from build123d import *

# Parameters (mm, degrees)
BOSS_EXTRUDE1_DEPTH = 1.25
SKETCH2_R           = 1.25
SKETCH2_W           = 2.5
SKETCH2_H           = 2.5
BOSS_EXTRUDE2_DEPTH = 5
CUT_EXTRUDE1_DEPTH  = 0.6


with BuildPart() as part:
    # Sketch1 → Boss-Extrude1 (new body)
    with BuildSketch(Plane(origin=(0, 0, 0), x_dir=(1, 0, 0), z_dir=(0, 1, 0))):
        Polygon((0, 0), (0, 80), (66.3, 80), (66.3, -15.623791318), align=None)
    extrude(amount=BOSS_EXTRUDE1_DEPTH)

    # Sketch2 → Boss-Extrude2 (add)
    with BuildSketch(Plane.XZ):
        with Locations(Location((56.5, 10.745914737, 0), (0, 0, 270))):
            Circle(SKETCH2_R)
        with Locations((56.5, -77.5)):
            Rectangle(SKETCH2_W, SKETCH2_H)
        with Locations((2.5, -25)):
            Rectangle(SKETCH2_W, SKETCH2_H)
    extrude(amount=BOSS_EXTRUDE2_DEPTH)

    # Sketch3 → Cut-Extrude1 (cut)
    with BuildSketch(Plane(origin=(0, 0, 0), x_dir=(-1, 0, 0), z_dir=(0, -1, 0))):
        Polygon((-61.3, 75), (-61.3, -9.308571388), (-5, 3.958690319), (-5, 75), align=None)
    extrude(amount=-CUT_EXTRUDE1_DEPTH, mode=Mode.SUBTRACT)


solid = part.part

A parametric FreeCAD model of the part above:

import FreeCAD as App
import Part
import Sketcher
from FreeCAD import Vector
Q = App.Units.Quantity

doc = App.newDocument("Part")
body = doc.addObject("PartDesign::Body", "Body")

# Sketch on XZ plane
sketch1 = doc.addObject("Sketcher::SketchObject", "Sketch")
body.addObject(sketch1)
sketch1.AttachmentSupport = (doc.XZ_Plane, [""])
sketch1.MapMode = "FlatFace"
sketch1.addGeometry([
    Part.LineSegment(Vector(0, -80, 0), Vector(0, 0, 0)),
    Part.LineSegment(Vector(0, 0, 0), Vector(66, 16, 0)),
    Part.LineSegment(Vector(66, 16, 0), Vector(66, -80, 0)),
    Part.LineSegment(Vector(66, -80, 0), Vector(0, -80, 0)),
], False)
sketch1.addConstraint([
    Sketcher.Constraint("Coincident", 0, 2, 1, 1),
    Sketcher.Constraint("Coincident", 1, 2, 2, 1),
    Sketcher.Constraint("Coincident", 2, 2, 3, 1),
    Sketcher.Constraint("Coincident", 3, 2, 0, 1),
    Sketcher.Constraint("Vertical", 0),
    Sketcher.Constraint("Vertical", 2),
    Sketcher.Constraint("Horizontal", 3),
    Sketcher.Constraint("Coincident", 0, 2, -1, 1),
    Sketcher.Constraint("DistanceY", 0, 1, 0, 2, 80.0),
    Sketcher.Constraint("DistanceX", 3, 2, 3, 1, 66.3),
    Sketcher.Constraint("Angle", 1, Q("13.26 deg")),
])
pad1 = doc.addObject("PartDesign::Pad", "Pad")
body.addObject(pad1)
pad1.Profile = sketch1
pad1.Length = 1.25
pad1.Reversed = True

# Sketch on XZ plane
sketch2 = doc.addObject("Sketcher::SketchObject", "Sketch001")
body.addObject(sketch2)
sketch2.AttachmentSupport = (doc.XZ_Plane, [""])
sketch2.MapMode = "FlatFace"
sketch2.addGeometry([
    Part.Circle(Vector(56.5, 10.7, 0), Vector(0, 0, 1), 1.2),  # 0
    Part.LineSegment(Vector(55.2, -76.2, 0), Vector(55.2, -78.8, 0)),  # 1
    Part.LineSegment(Vector(55.2, -78.8, 0), Vector(57.8, -78.8, 0)),  # 2
    Part.LineSegment(Vector(57.8, -78.8, 0), Vector(57.8, -76.2, 0)),  # 3
    Part.LineSegment(Vector(57.8, -76.2, 0), Vector(55.2, -76.2, 0)),  # 4
    Part.LineSegment(Vector(1.2, -23.8, 0), Vector(1.2, -26.2, 0)),  # 5
    Part.LineSegment(Vector(1.2, -26.2, 0), Vector(3.8, -26.2, 0)),  # 6
    Part.LineSegment(Vector(3.8, -26.2, 0), Vector(3.8, -23.8, 0)),  # 7
    Part.LineSegment(Vector(3.8, -23.8, 0), Vector(1.2, -23.8, 0)),  # 8
], False)
sketch2.addConstraint([
    Sketcher.Constraint("Coincident", 1, 2, 2, 1),
    Sketcher.Constraint("Coincident", 2, 2, 3, 1),
    Sketcher.Constraint("Coincident", 3, 2, 4, 1),
    Sketcher.Constraint("Coincident", 4, 2, 1, 1),
    Sketcher.Constraint("Coincident", 5, 2, 6, 1),
    Sketcher.Constraint("Coincident", 6, 2, 7, 1),
    Sketcher.Constraint("Coincident", 7, 2, 8, 1),
    Sketcher.Constraint("Coincident", 8, 2, 5, 1),
    Sketcher.Constraint("Vertical", 1),
    Sketcher.Constraint("Horizontal", 2),
    Sketcher.Constraint("Vertical", 3),
    Sketcher.Constraint("Horizontal", 4),
    Sketcher.Constraint("Vertical", 5),
    Sketcher.Constraint("Horizontal", 6),
    Sketcher.Constraint("Vertical", 7),
    Sketcher.Constraint("Horizontal", 8),
    Sketcher.Constraint("Equal", 4, 6),
    Sketcher.Constraint("Equal", 8, 1),
    Sketcher.Constraint("Equal", 3, 5),
    Sketcher.Constraint("Diameter", 0, 2.5),
    Sketcher.Constraint("DistanceX", 2, 1, 2, 2, 2.5),
    Sketcher.Constraint("DistanceX", 5, 2, 4, 2, 54.0),
    Sketcher.Constraint("DistanceY", 4, 2, 5, 2, 50.0),
    Sketcher.Constraint("DistanceX", -1, 1, 0, 3, 56.5),
    Sketcher.Constraint("DistanceX", -1, 1, 1, 2, 55.25),
    Sketcher.Constraint("DistanceY", 1, 2, -1, 1, 78.75),
    Sketcher.Constraint("DistanceY", -1, 1, 0, 3, 10.745915),
])
pad2 = doc.addObject("PartDesign::Pad", "Pad001")
body.addObject(pad2)
pad2.Profile = sketch2
pad2.Length = 5

# Sketch on XZ plane
sketch3 = doc.addObject("Sketcher::SketchObject", "Sketch002")
body.addObject(sketch3)
sketch3.AttachmentSupport = (doc.XZ_Plane, [""])
sketch3.MapMode = "FlatFace"
sketch3.addGeometry([
    Part.LineSegment(Vector(61, -75, 0), Vector(61, 9, 0)),
    Part.LineSegment(Vector(61, 9, 0), Vector(5, -4, 0)),
    Part.LineSegment(Vector(5, -4, 0), Vector(5, -75, 0)),
    Part.LineSegment(Vector(5, -75, 0), Vector(61, -75, 0)),
], False)
sketch3.addConstraint([
    Sketcher.Constraint("Coincident", 0, 2, 1, 1),
    Sketcher.Constraint("Coincident", 1, 2, 2, 1),
    Sketcher.Constraint("Coincident", 2, 2, 3, 1),
    Sketcher.Constraint("Coincident", 3, 2, 0, 1),
    Sketcher.Constraint("Vertical", 0),
    Sketcher.Constraint("Vertical", 2),
    Sketcher.Constraint("Horizontal", 3),
    Sketcher.Constraint("DistanceX", 3, 1, 3, 2, 56.3),
    Sketcher.Constraint("DistanceX", -1, 1, 1, 2, 5.0),
    Sketcher.Constraint("DistanceY", 2, 2, -1, 1, 75.0),
    Sketcher.Constraint("Angle", 1, Q("-166.74 deg")),
    Sketcher.Constraint("DistanceY", 0, 1, 0, 2, 84.308571),
])
pocket1 = doc.addObject("PartDesign::Pocket", "Pocket")
body.addObject(pocket1)
pocket1.Profile = sketch3
pocket1.Length = 0.6

doc.recompute()
